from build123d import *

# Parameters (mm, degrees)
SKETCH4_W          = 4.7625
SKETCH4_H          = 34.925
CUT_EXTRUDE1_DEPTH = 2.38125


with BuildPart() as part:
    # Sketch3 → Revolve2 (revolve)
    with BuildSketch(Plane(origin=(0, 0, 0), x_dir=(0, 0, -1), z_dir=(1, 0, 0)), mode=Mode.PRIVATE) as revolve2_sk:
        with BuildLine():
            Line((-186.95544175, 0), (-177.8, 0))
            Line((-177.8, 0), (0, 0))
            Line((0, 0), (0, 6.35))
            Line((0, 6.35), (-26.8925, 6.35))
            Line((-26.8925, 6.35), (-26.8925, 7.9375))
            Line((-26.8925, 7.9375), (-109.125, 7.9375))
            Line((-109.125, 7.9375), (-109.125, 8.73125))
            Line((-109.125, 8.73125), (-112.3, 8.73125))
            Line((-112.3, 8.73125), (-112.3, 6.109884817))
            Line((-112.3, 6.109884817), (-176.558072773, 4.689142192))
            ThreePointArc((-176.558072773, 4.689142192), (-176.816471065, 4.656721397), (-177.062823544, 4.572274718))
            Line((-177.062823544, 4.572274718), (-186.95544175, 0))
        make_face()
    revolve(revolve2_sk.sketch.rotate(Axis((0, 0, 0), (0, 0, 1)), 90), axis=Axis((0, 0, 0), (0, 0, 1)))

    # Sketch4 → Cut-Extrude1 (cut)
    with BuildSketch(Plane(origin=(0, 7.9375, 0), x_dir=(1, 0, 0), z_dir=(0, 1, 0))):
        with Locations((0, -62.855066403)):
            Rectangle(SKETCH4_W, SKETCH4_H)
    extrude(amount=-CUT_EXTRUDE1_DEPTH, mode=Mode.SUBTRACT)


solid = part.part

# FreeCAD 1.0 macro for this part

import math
import FreeCAD as App
import Part
import Sketcher
Q = App.Units.Quantity

doc = App.newDocument("Part")
body = doc.addObject("PartDesign::Body", "Body")

sketch1 = doc.addObject("Sketcher::SketchObject", "Sketch")
body.addObject(sketch1)
sketch1.AttachmentSupport = (doc.YZ_Plane, [""])
sketch1.MapMode = "FlatFace"
sketch1.addGeometry([
    Part.LineSegment(App.Vector(0, 186.955442, 0), App.Vector(0, 0, 0)),
    Part.LineSegment(App.Vector(0, 0, 0), App.Vector(6.35, 0, 0)),
    Part.LineSegment(App.Vector(6.35, 0, 0), App.Vector(6.35, 26.8925, 0)),
    Part.LineSegment(App.Vector(6.35, 26.8925, 0), App.Vector(7.9375, 26.8925, 0)),
    Part.LineSegment(App.Vector(7.9375, 26.8925, 0), App.Vector(7.9375, 109.125, 0)),
    Part.LineSegment(App.Vector(7.9375, 109.125, 0), App.Vector(8.73125, 109.125, 0)),
    Part.LineSegment(App.Vector(8.73125, 109.125, 0), App.Vector(8.73125, 112.3, 0)),
    Part.LineSegment(App.Vector(8.73125, 112.3, 0), App.Vector(6.109885, 112.3, 0)),
    Part.LineSegment(App.Vector(6.109885, 112.3, 0), App.Vector(4.689142, 176.558073, 0)),
    Part.ArcOfCircle(Part.Circle(App.Vector(3.419452, 176.53, 0), App.Vector(0, 0, 1), 1.27), math.radians(1.2666), math.radians(24.805934)),
    Part.LineSegment(App.Vector(4.572275, 177.062824, 0), App.Vector(0, 186.955442, 0)),
], False)
sketch1.addConstraint([
    Sketcher.Constraint("Coincident", 0, 2, 1, 1),
    Sketcher.Constraint("Coincident", 1, 2, 2, 1),
    Sketcher.Constraint("Coincident", 2, 2, 3, 1),
    Sketcher.Constraint("Coincident", 3, 2, 4, 1),
    Sketcher.Constraint("Coincident", 4, 2, 5, 1),
    Sketcher.Constraint("Coincident", 5, 2, 6, 1),
    Sketcher.Constraint("Coincident", 6, 2, 7, 1),
    Sketcher.Constraint("Coincident", 7, 2, 8, 1),
    Sketcher.Constraint("Tangent", 8, 2, 9, 1),
    Sketcher.Constraint("Tangent", 9, 2, 10, 1),
    Sketcher.Constraint("Coincident", 10, 2, 0, 1),
    Sketcher.Constraint("Vertical", 0),
    Sketcher.Constraint("Horizontal", 1),
    Sketcher.Constraint("Vertical", 2),
    Sketcher.Constraint("Horizontal", 3),
    Sketcher.Constraint("Vertical", 4),
    Sketcher.Constraint("Horizontal", 5),
    Sketcher.Constraint("Vertical", 6),
    Sketcher.Constraint("Horizontal", 7),
    Sketcher.Constraint("Coincident", 0, 2, -1, 1),
    Sketcher.Constraint("Radius", 9, Q("0.05 in")),
    Sketcher.Constraint("DistanceX", 1, 1, 1, 2, Q("0.25 in")),
    Sketcher.Constraint("DistanceX", 3, 1, 3, 2, Q("0.0625 in")),
    Sketcher.Constraint("DistanceX", 5, 1, 5, 2, Q("0.03125 in")),
    Sketcher.Constraint("DistanceY", 6, 1, 6, 2, Q("0.125 in")),
    Sketcher.Constraint("DistanceY", -1, 1, 9, 3, Q("6.95 in")),
    Sketcher.Constraint("DistanceY", 4, 1, 4, 2, Q("3.2375 in")),
    Sketcher.Constraint("DistanceY", 2, 1, 2, 2, 26.8925),
    Sketcher.Constraint("DistanceY", 0, 2, 0, 1, 186.955442),
    Sketcher.Constraint("DistanceX", 7, 2, 7, 1, 2.621365),
    Sketcher.Constraint("DistanceY", 8, 2, 9, 2, 0.504751),
])
revolution = doc.addObject("PartDesign::Revolution", "Revolution")
body.addObject(revolution)
revolution.Profile = sketch1
revolution.ReferenceAxis = (sketch1, ["V_Axis"])
revolution.Angle = 360

sketch2 = doc.addObject("Sketcher::SketchObject", "Sketch001")
body.addObject(sketch2)
sketch2.AttachmentSupport = (doc.XZ_Plane, [""])
sketch2.MapMode = "FlatFace"
sketch2.AttachmentOffset = App.Placement(App.Vector(0, 0, -0.3125 * 25.4), App.Rotation())
sketch2.addGeometry([
    Part.LineSegment(App.Vector(-2.38125, 45.392566, 0), App.Vector(-2.38125, 80.317566, 0)),
    Part.LineSegment(App.Vector(-2.38125, 80.317566, 0), App.Vector(2.38125, 80.317566, 0)),
    Part.LineSegment(App.Vector(2.38125, 80.317566, 0), App.Vector(2.38125, 45.392566, 0)),
    Part.LineSegment(App.Vector(2.38125, 45.392566, 0), App.Vector(-2.38125, 45.392566, 0)),
], False)
sketch2.addConstraint([
    Sketcher.Constraint("Coincident", 0, 2, 1, 1),
    Sketcher.Constraint("Coincident", 1, 2, 2, 1),
    Sketcher.Constraint("Coincident", 2, 2, 3, 1),
    Sketcher.Constraint("Coincident", 3, 2, 0, 1),
    Sketcher.Constraint("Vertical", 0),
    Sketcher.Constraint("Horizontal", 1),
    Sketcher.Constraint("Vertical", 2),
    Sketcher.Constraint("Horizontal", 3),
    Sketcher.Constraint("DistanceX", 1, 1, 1, 2, Q("0.1875 in")),
    Sketcher.Constraint("DistanceY", 0, 1, 0, 2, Q("1.375 in")),
    Sketcher.Constraint("DistanceX", 0, 2, -1, 1, Q("0.09375 in")),
    Sketcher.Constraint("DistanceY", -1, 1, 0, 2, 80.317566),
])
pocket1 = doc.addObject("PartDesign::Pocket", "Pocket")
body.addObject(pocket1)
pocket1.Profile = sketch2
pocket1.Length = Q("0.09375 in")
pocket1.Reversed = True

doc.recompute()
